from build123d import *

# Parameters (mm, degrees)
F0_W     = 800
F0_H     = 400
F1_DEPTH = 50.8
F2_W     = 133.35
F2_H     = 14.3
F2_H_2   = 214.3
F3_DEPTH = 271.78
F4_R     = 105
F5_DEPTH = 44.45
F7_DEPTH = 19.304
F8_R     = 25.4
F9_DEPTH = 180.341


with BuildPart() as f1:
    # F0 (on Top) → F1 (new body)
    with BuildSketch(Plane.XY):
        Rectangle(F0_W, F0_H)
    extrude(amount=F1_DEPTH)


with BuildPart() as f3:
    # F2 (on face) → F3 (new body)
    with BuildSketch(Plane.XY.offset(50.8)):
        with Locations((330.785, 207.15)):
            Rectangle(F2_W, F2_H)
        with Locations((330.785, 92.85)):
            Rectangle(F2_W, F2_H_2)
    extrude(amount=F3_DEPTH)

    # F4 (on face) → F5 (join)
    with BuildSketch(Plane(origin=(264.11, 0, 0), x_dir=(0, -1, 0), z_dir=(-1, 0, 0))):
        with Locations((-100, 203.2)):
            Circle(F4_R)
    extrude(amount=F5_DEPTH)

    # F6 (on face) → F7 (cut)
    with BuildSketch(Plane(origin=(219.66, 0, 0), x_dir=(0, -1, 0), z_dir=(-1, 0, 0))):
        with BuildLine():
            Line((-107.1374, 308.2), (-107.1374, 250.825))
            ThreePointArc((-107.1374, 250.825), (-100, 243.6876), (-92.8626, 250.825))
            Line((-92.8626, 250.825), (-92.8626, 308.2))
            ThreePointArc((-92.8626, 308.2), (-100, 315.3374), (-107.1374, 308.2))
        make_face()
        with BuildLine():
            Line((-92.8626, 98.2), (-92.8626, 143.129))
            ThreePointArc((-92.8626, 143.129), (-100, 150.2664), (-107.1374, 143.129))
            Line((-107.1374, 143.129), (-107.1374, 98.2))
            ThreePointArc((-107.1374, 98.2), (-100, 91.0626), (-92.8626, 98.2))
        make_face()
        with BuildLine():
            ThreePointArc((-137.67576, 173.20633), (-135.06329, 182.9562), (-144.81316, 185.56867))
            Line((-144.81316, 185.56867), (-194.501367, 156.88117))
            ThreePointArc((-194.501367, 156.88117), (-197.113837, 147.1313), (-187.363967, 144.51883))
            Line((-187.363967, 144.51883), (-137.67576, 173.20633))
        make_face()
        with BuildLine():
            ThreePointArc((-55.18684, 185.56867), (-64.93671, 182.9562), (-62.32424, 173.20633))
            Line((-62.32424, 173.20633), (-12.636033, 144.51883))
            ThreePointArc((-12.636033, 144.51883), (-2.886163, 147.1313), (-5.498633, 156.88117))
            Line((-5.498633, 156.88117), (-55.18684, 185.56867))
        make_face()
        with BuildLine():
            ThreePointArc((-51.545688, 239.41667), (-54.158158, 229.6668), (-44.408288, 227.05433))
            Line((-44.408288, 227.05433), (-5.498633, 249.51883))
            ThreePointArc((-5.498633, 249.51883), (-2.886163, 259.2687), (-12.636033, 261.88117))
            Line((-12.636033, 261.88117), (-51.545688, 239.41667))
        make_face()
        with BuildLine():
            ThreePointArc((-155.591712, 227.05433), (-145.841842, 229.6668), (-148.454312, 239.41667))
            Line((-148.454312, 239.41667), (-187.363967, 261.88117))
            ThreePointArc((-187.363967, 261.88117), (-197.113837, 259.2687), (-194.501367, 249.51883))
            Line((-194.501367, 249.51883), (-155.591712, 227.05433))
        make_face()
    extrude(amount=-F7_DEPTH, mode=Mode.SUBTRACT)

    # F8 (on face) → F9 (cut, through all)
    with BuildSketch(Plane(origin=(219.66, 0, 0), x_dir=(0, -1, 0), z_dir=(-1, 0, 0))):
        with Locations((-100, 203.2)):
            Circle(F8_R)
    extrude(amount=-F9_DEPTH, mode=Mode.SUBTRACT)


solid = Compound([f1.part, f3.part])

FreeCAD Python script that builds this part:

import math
import FreeCAD as App
import Part
import Sketcher
from FreeCAD import Vector
Q = App.Units.Quantity


def add_polygon(sketch, points):
    """Adds a closed chain of lines whose ends are joined by coincident constraints."""
    first, n = sketch.GeometryCount, len(points)
    for a, b in zip(points, points[1:] + points[:1]):
        sketch.addGeometry(Part.LineSegment(App.Vector(*a, 0), App.Vector(*b, 0)), False)
    for i in range(n):
        sketch.addConstraint(Sketcher.Constraint("Coincident", first + i, 2, first + (i + 1) % n, 1))

doc = App.newDocument("Part")
params = doc.addObject("Spreadsheet::Sheet", "Params")
for row, (alias, value) in enumerate([
    ("pad1_length", "2 in"),
    ("sketch2_height", "9 in"),
    ("sketch2_width", "5.25 in"),
    ("pad2_length", "10.7 in"),
    ("pad3_length", "1.75 in"),
    ("sketch4_radius", "0.281 in"),
    ("pocket1_length", "0.76 in"),
    ("sketch5_diameter", "2 in"),
], start=1):
    params.set(f"A{row}", alias)
    params.set(f"B{row}", "=" + value)
    params.setAlias(f"B{row}", alias)

body = doc.addObject("PartDesign::Body", "Body")

sketch1 = body.newObject("Sketcher::SketchObject", "Sketch")
sketch1.AttachmentSupport = (doc.getObject("XY_Plane"), [""])
sketch1.MapMode = "FlatFace"
add_polygon(sketch1, [(-400, 200), (-400, -200), (400, -200), (400, 200)])
sketch1.addConstraint([
    Sketcher.Constraint("Vertical", 0),
    Sketcher.Constraint("Horizontal", 1),
    Sketcher.Constraint("Vertical", 2),
    Sketcher.Constraint("Horizontal", 3),
    Sketcher.Constraint("Symmetric", 0, 2, 2, 2, -1, 1),
    Sketcher.Constraint("DistanceX", 1, 1, 1, 2, 800.0),
    Sketcher.Constraint("DistanceY", 0, 2, 0, 1, 400.0),
])
pad1 = body.newObject("PartDesign::Pad", "Pad")
pad1.Profile = sketch1
pad1.setExpression("Length", "Params.pad1_length")
body2 = doc.addObject("PartDesign::Body", "Body001")

sketch2 = body2.newObject("Sketcher::SketchObject", "Sketch001")
sketch2.AttachmentSupport = (doc.getObject("XY_Plane001"), [""])
sketch2.MapMode = "FlatFace"
sketch2.AttachmentOffset = App.Placement(Vector(0, 0, 2 * 25.4), App.Rotation())
add_polygon(sketch2, [(264, 214), (264, -14), (397, -14), (397, 214)])
sketch2.addConstraint([
    Sketcher.Constraint("Vertical", 0),
    Sketcher.Constraint("Horizontal", 1),
    Sketcher.Constraint("Vertical", 2),
    Sketcher.Constraint("Horizontal", 3),
    Sketcher.Constraint("DistanceY", 0, 2, 0, 1, Q("9 in")),
    Sketcher.Constraint("DistanceX", 1, 1, 1, 2, Q("5.25 in")),
    Sketcher.Constraint("DistanceX", -1, 1, 0, 2, 264.11),
    Sketcher.Constraint("DistanceY", 0, 2, -1, 1, 14.3),
])
sketch2.setExpression("Constraints[8]", "Params.sketch2_height")
sketch2.setExpression("Constraints[9]", "Params.sketch2_width")
pad2 = body2.newObject("PartDesign::Pad", "Pad001")
pad2.Profile = sketch2
pad2.setExpression("Length", "Params.pad2_length")

sketch3 = body2.newObject("Sketcher::SketchObject", "Sketch002")
sketch3.AttachmentSupport = (doc.getObject("YZ_Plane001"), [""])
sketch3.MapMode = "FlatFace"
sketch3.AttachmentOffset = App.Placement(Vector(0, 0, 264.11), App.Rotation())
sketch3.addGeometry(Part.Circle(Vector(100, 203, 0), Vector(0, 0, 1), 105), False)
sketch3.addConstraint([
    Sketcher.Constraint("DistanceY", -1, 1, 0, 3, Q("8 in")),
    Sketcher.Constraint("Diameter", 0, 210.0),
    Sketcher.Constraint("DistanceX", -1, 1, 0, 3, 100.0),
])
pad3 = body2.newObject("PartDesign::Pad", "Pad002")
pad3.Profile = sketch3
pad3.setExpression("Length", "Params.pad3_length")
pad3.Reversed = True

sketch4 = body2.newObject("Sketcher::SketchObject", "Sketch003")
sketch4.AttachmentSupport = (doc.getObject("YZ_Plane001"), [""])
sketch4.MapMode = "FlatFace"
sketch4.AttachmentOffset = App.Placement(Vector(0, 0, 219.66), App.Rotation())
sketch4.addGeometry([
    Part.LineSegment(Vector(107, 308, 0), Vector(107, 251, 0)),
    Part.ArcOfCircle(Part.Circle(Vector(100, 251, 0), Vector(0, 0, 1), 7), math.radians(180), math.radians(360)),
    Part.LineSegment(Vector(93, 251, 0), Vector(93, 308, 0)),
    Part.ArcOfCircle(Part.Circle(Vector(100, 308, 0), Vector(0, 0, 1), 7), math.radians(0), math.radians(180)),
    Part.LineSegment(Vector(93, 98, 0), Vector(93, 143, 0)),
    Part.ArcOfCircle(Part.Circle(Vector(100, 143, 0), Vector(0, 0, 1), 7), math.radians(0), math.radians(180)),
    Part.LineSegment(Vector(107, 143, 0), Vector(107, 98, 0)),
    Part.ArcOfCircle(Part.Circle(Vector(100, 98, 0), Vector(0, 0, 1), 7), math.radians(180), math.radians(360)),
    Part.ArcOfCircle(Part.Circle(Vector(141, 179, 0), Vector(0, 0, 1), 7), math.radians(60), math.radians(240)),
    Part.LineSegment(Vector(145, 186, 0), Vector(195, 157, 0)),
    Part.ArcOfCircle(Part.Circle(Vector(191, 151, 0), Vector(0, 0, 1), 7), math.radians(-120), math.radians(60)),
    Part.LineSegment(Vector(187, 145, 0), Vector(138, 173, 0)),
    Part.ArcOfCircle(Part.Circle(Vector(59, 179, 0), Vector(0, 0, 1), 7), math.radians(-60), math.radians(120)),
    Part.LineSegment(Vector(62, 173, 0), Vector(13, 145, 0)),
    Part.ArcOfCircle(Part.Circle(Vector(9, 151, 0), Vector(0, 0, 1), 7), math.radians(120), math.radians(300)),
    Part.LineSegment(Vector(5, 157, 0), Vector(55, 186, 0)),
    Part.ArcOfCircle(Part.Circle(Vector(48, 233, 0), Vector(0, 0, 1), 7), math.radians(-120), math.radians(60)),
    Part.LineSegment(Vector(44, 227, 0), Vector(5, 250, 0)),
    Part.ArcOfCircle(Part.Circle(Vector(9, 256, 0), Vector(0, 0, 1), 7), math.radians(60), math.radians(240)),
    Part.LineSegment(Vector(13, 262, 0), Vector(52, 239, 0)),
    Part.ArcOfCircle(Part.Circle(Vector(152, 233, 0), Vector(0, 0, 1), 7), math.radians(120), math.radians(300)),
    Part.LineSegment(Vector(148, 239, 0), Vector(187, 262, 0)),
    Part.ArcOfCircle(Part.Circle(Vector(191, 256, 0), Vector(0, 0, 1), 7), math.radians(-60), math.radians(120)),
    Part.LineSegment(Vector(195, 250, 0), Vector(156, 227, 0)),
], False)
sketch4.addConstraint([
    Sketcher.Constraint("Tangent", 0, 2, 1, 2),
    Sketcher.Constraint("Tangent", 1, 1, 2, 1),
    Sketcher.Constraint("Tangent", 2, 2, 3, 2),
    Sketcher.Constraint("Tangent", 3, 1, 0, 1),
    Sketcher.Constraint("Tangent", 4, 2, 5, 2),
    Sketcher.Constraint("Tangent", 5, 1, 6, 1),
    Sketcher.Constraint("Tangent", 6, 2, 7, 2),
    Sketcher.Constraint("Tangent", 7, 1, 4, 1),
    Sketcher.Constraint("Tangent", 8, 1, 9, 1),
    Sketcher.Constraint("Tangent", 9, 2, 10, 2),
    Sketcher.Constraint("Tangent", 10, 1, 11, 1),
    Sketcher.Constraint("Tangent", 11, 2, 8, 2),
    Sketcher.Constraint("Tangent", 12, 1, 13, 1),
    Sketcher.Constraint("Tangent", 13, 2, 14, 2),
    Sketcher.Constraint("Tangent", 14, 1, 15, 1),
    Sketcher.Constraint("Tangent", 15, 2, 12, 2),
    Sketcher.Constraint("Tangent", 16, 1, 17, 1),
    Sketcher.Constraint("Tangent", 17, 2, 18, 2),
    Sketcher.Constraint("Tangent", 18, 1, 19, 1),
    Sketcher.Constraint("Tangent", 19, 2, 16, 2),
    Sketcher.Constraint("Tangent", 20, 1, 21, 1),
    Sketcher.Constraint("Tangent", 21, 2, 22, 2),
    Sketcher.Constraint("Tangent", 22, 1, 23, 1),
    Sketcher.Constraint("Tangent", 23, 2, 20, 2),
    Sketcher.Constraint("Vertical", 0),
    Sketcher.Constraint("Vertical", 2),
    Sketcher.Constraint("Vertical", 4),
    Sketcher.Constraint("Vertical", 6),
    Sketcher.Constraint("Equal", 3, 5),
    Sketcher.Constraint("Equal", 7, 8),
    Sketcher.Constraint("Equal", 8, 10),
    Sketcher.Constraint("Equal", 10, 12),
    Sketcher.Constraint("Equal", 12, 14),
    Sketcher.Constraint("Equal", 14, 16),
    Sketcher.Constraint("Equal", 16, 18),
    Sketcher.Constraint("Equal", 18, 20),
    Sketcher.Constraint("Equal", 20, 22),
    Sketcher.Constraint("Parallel", 11, 17),
    Sketcher.Constraint("Parallel", 15, 21),
    Sketcher.Constraint("Horizontal", 8, 3, 12, 3),
    Sketcher.Constraint("Horizontal", 10, 3, 14, 3),
    Sketcher.Constraint("Horizontal", 16, 3, 20, 3),
    Sketcher.Constraint("Horizontal", 18, 3, 22, 3),
    Sketcher.Constraint("Horizontal", 11, 2, 12, 1),
    Sketcher.Constraint("Vertical", 3, 3, 5, 3),
    Sketcher.Constraint("Vertical", 14, 3, 18, 3),
    Sketcher.Constraint("Vertical", 10, 3, 22, 3),
    Sketcher.Constraint("Angle", 9, Q("-30 deg")),
    Sketcher.Constraint("Radius", 1, Q("0.281 in")),
    Sketcher.Constraint("DistanceY", 5, 3, 1, 3, Q("4.24 in")),
    Sketcher.Constraint("DistanceY", 12, 3, 16, 3, Q("2.12 in")),
    Sketcher.Constraint("DistanceY", -1, 1, 1, 3, Q("9.875 in")),
    Sketcher.Constraint("DistanceY", -1, 1, 8, 3, Q("7.0625 in")),
    Sketcher.Constraint("DistanceY", 0, 2, 0, 1, 57.375),
    Sketcher.Constraint("DistanceY", 4, 1, 4, 2, 44.929),
    Sketcher.Constraint("DistanceX", 16, 3, 20, 3, Q("4.0963002 in")),
    Sketcher.Constraint("Distance", 9, 57.375),
    Sketcher.Constraint("Distance", 17, 44.929),
    Sketcher.Constraint("DistanceX", -1, 1, 1, 3, 100.0),
    Sketcher.Constraint("DistanceX", -1, 1, 8, 3, 141.24446),
])
sketch4.setExpression("Constraints[48]", "Params.sketch4_radius")
pocket1 = body2.newObject("PartDesign::Pocket", "Pocket")
pocket1.Profile = sketch4
pocket1.setExpression("Length", "Params.pocket1_length")
pocket1.Reversed = True

sketch5 = body2.newObject("Sketcher::SketchObject", "Sketch004")
sketch5.AttachmentSupport = (doc.getObject("YZ_Plane001"), [""])
sketch5.MapMode = "FlatFace"
sketch5.AttachmentOffset = App.Placement(Vector(0, 0, 219.66), App.Rotation())
sketch5.addGeometry(Part.Circle(Vector(100, 203, 0), Vector(0, 0, 1), 25), False)
sketch5.addConstraint([
    Sketcher.Constraint("Diameter", 0, Q("2 in")),
    Sketcher.Constraint("DistanceY", -1, 1, 0, 3, Q("8 in")),
    Sketcher.Constraint("DistanceX", -1, 1, 0, 3, 100.0),
])
sketch5.setExpression("Constraints[0]", "Params.sketch5_diameter")
pocket2 = body2.newObject("PartDesign::Pocket", "Pocket001")
pocket2.Profile = sketch5
pocket2.Type = "ThroughAll"
pocket2.Reversed = True

doc.recompute()
